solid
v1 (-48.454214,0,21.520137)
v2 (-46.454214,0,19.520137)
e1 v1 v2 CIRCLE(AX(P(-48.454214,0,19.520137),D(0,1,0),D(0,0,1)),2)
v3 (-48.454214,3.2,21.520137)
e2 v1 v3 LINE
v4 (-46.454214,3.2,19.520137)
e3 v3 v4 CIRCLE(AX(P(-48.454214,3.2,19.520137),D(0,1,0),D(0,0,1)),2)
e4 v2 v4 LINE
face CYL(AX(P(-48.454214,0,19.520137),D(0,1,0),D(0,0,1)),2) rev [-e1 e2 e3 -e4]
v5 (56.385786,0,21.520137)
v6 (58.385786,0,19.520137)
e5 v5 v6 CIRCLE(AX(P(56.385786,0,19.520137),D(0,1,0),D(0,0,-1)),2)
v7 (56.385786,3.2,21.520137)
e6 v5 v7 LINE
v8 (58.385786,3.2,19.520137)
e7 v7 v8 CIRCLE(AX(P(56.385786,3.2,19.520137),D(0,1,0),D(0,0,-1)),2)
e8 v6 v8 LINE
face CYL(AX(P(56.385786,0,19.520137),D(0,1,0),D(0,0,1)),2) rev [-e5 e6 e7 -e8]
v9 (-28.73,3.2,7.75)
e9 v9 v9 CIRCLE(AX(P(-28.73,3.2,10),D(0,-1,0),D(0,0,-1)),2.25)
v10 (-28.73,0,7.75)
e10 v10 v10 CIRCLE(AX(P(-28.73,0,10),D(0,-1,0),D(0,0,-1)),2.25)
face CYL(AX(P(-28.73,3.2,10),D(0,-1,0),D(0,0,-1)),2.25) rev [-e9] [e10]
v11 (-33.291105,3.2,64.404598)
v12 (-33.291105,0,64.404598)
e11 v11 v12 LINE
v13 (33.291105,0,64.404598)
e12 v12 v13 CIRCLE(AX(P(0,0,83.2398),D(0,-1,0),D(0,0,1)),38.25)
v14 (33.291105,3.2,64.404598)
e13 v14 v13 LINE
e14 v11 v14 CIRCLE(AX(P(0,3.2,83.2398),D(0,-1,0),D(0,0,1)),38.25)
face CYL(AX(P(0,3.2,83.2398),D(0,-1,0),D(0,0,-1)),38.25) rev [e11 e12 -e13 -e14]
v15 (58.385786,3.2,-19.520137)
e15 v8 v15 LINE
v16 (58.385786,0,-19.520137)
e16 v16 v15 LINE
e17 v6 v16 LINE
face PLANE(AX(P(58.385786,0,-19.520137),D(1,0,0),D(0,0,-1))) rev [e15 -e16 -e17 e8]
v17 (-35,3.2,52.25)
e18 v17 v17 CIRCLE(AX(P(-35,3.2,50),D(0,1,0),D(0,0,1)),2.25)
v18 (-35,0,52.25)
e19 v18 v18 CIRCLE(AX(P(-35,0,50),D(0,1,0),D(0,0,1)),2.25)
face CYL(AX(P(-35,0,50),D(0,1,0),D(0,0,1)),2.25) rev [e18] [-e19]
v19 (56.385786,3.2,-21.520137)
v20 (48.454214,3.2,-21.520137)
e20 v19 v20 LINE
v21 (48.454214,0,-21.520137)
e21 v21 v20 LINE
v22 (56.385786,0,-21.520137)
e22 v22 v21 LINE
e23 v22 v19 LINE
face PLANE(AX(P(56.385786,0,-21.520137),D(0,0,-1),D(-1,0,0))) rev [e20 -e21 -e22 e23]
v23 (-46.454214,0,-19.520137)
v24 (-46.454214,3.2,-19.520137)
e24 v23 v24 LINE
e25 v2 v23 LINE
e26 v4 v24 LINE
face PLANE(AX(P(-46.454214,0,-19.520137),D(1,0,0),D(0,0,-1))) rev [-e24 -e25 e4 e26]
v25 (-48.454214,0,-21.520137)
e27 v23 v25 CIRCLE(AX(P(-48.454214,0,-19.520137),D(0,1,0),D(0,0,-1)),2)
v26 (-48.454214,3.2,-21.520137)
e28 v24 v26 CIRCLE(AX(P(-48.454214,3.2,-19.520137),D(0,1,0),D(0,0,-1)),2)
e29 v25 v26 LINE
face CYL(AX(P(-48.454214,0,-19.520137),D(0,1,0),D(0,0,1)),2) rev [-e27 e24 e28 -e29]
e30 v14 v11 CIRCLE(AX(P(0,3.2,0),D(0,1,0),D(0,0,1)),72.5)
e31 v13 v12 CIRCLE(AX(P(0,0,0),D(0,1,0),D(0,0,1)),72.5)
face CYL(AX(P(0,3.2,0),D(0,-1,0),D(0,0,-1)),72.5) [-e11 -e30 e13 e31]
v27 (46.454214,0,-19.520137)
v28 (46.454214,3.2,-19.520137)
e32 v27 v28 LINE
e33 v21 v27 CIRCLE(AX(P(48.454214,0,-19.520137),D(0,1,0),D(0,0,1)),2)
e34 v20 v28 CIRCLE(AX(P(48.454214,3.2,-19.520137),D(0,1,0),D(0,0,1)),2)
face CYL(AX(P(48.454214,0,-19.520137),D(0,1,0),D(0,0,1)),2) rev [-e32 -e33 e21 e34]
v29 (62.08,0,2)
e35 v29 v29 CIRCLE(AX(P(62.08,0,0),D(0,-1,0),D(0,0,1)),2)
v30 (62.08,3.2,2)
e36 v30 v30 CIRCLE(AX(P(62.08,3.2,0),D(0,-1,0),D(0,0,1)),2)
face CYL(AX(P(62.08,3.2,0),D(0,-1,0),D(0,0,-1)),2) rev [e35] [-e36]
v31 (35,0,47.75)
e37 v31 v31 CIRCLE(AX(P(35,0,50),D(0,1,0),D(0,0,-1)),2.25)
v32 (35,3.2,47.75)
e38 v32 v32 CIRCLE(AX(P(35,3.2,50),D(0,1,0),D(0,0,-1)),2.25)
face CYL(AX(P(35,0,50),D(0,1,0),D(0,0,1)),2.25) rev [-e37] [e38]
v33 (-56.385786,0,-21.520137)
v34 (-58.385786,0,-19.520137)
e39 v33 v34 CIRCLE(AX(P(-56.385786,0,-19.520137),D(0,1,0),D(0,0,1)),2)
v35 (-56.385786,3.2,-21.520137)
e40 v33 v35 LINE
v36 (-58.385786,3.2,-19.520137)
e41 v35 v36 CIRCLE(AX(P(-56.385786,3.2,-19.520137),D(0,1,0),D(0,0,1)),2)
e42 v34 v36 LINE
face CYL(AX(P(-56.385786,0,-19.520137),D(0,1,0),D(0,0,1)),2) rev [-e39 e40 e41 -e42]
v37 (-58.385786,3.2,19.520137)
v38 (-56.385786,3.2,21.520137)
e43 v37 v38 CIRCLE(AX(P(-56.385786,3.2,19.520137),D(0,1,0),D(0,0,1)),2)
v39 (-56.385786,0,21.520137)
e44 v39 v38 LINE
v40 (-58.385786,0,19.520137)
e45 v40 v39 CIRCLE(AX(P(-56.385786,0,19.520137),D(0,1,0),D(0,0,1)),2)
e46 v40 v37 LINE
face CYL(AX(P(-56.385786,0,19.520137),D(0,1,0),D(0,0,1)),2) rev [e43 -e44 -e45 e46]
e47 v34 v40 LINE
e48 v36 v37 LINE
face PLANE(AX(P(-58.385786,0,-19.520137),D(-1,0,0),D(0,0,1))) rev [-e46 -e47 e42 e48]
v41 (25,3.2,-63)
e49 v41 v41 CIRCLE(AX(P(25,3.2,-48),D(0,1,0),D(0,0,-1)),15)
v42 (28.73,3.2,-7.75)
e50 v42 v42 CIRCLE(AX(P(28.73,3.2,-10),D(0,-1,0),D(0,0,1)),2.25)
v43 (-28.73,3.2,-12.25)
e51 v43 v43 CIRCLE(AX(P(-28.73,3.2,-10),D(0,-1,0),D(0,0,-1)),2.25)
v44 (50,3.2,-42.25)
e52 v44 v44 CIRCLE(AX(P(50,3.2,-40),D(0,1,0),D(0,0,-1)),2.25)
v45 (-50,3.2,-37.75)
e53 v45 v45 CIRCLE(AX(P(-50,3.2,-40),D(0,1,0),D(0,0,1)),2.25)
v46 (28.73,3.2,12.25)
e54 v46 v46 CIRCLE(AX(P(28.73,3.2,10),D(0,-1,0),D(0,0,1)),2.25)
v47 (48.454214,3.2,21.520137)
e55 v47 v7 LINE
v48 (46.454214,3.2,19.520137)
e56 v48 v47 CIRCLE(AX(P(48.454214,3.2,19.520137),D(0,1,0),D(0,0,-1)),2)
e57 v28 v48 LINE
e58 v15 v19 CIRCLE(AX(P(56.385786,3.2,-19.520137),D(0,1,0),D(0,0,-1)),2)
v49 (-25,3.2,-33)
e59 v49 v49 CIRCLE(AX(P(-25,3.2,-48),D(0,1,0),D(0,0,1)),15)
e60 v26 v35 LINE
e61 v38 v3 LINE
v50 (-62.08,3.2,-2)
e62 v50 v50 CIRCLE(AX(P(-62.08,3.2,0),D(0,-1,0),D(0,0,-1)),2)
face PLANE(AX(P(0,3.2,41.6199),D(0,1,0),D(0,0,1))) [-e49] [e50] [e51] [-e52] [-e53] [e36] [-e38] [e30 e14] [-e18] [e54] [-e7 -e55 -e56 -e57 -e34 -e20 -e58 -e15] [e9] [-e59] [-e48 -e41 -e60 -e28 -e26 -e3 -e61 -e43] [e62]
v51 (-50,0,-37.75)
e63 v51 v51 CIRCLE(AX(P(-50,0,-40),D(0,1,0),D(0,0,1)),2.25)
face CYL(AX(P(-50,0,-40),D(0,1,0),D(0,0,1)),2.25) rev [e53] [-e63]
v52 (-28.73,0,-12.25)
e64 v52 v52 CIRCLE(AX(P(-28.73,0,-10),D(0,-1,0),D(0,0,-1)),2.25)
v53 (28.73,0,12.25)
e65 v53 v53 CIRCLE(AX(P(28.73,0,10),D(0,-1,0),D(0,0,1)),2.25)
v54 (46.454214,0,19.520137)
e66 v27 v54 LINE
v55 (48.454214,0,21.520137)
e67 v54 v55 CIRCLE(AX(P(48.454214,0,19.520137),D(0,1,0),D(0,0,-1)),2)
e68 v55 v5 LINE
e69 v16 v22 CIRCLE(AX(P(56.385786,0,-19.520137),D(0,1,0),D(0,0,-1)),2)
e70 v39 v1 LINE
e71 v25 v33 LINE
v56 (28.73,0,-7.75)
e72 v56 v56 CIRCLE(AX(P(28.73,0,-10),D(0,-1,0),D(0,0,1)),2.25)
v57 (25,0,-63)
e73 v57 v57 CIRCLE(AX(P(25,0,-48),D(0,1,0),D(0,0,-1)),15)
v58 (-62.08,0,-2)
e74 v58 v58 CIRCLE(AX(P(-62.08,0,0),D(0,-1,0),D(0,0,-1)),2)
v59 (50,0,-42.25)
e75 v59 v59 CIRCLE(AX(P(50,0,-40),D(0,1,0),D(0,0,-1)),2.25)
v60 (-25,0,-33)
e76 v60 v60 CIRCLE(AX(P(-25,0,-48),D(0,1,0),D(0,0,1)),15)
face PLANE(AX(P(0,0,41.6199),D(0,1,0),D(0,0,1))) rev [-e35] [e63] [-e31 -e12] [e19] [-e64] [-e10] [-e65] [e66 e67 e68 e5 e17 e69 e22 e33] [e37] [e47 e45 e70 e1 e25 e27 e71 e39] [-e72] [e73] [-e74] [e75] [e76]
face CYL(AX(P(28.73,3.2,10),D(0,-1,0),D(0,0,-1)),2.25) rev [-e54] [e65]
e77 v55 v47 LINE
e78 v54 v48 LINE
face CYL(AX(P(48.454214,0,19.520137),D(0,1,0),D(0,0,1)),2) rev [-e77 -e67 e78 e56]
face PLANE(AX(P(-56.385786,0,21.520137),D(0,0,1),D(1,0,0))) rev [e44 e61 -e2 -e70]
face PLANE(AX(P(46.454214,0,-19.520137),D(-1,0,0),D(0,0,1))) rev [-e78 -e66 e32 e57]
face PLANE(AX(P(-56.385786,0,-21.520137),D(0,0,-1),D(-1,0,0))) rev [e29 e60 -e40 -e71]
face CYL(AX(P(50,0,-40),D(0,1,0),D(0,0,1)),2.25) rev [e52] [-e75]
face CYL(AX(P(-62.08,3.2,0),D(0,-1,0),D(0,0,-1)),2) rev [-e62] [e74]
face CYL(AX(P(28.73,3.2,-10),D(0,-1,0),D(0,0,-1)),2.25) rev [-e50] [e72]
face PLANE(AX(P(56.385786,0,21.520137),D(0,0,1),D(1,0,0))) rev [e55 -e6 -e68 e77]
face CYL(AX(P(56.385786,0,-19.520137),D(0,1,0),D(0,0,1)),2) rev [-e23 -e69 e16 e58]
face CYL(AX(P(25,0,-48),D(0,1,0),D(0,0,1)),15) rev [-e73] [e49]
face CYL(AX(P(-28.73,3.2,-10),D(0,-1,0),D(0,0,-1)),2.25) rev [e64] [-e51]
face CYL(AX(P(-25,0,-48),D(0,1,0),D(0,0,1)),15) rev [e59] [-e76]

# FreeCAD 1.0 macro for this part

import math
import FreeCAD as App
import Part
import Sketcher
from FreeCAD import Vector

doc = App.newDocument("Part")
params = doc.addObject("Spreadsheet::Sheet", "Params")
for row, (alias, value) in enumerate([
    ("sketch1_radius", "72.5 mm"),
    ("sketch1_radius2", "38.25 mm"),
    ("pad1_length", "3.2 mm"),
    ("sketch2_width", "10.76 mm"),
    ("sketch3_diameter", "4 mm"),
    ("sketch3_diameter2", "4.5 mm"),
    ("sketch4_diameter", "30 mm"),
    ("sketch5_radius", "2 mm"),
    ("sketch6_diameter", "4.5 mm"),
], start=1):
    params.set(f"A{row}", alias)
    params.set(f"B{row}", "=" + value)
    params.setAlias(f"B{row}", alias)

body = doc.addObject("PartDesign::Body", "Body")

sketch1 = doc.addObject("Sketcher::SketchObject", "Sketch")
body.addObject(sketch1)
sketch1.AttachmentSupport = (doc.XZ_Plane, [""])
sketch1.MapMode = "FlatFace"
sketch1.addGeometry([
    Part.ArcOfCircle(Part.Circle(Vector(0, 0, 0), Vector(0, 0, 1), 72), math.radians(117), math.radians(423)),
    Part.ArcOfCircle(Part.Circle(Vector(0, 83, 0), Vector(0, 0, 1), 38), math.radians(-150), math.radians(-30)),
], False)
sketch1.addConstraint([
    Sketcher.Constraint("Coincident", 0, 1, 1, 1),
    Sketcher.Constraint("Coincident", 1, 2, 0, 2),
    Sketcher.Constraint("Coincident", 0, 3, -1, 1),
    Sketcher.Constraint("PointOnObject", 1, 3, -2),
    Sketcher.Constraint("Radius", 0, 72.5),
    Sketcher.Constraint("Radius", 1, 38.25),
    Sketcher.Constraint("DistanceY", -1, 1, 1, 3, 83.2398),
])
sketch1.setExpression("Constraints[4]", "Params.sketch1_radius")
sketch1.setExpression("Constraints[5]", "Params.sketch1_radius2")
pad1 = doc.addObject("PartDesign::Pad", "Pad")
body.addObject(pad1)
pad1.Profile = sketch1
pad1.setExpression("Length", "Params.pad1_length")
pad1.Reversed = True

sketch2 = doc.addObject("Sketcher::SketchObject", "Sketch001")
body.addObject(sketch2)
sketch2.AttachmentSupport = (doc.XZ_Plane, [""])
sketch2.MapMode = "FlatFace"
sketch2.AttachmentOffset = App.Placement(Vector(0, 0, -3.2), App.Rotation())
sketch2.addGeometry([
    Part.LineSegment(Vector(-58, -21, 0), Vector(-58, 21, 0)),
    Part.LineSegment(Vector(-58, 21, 0), Vector(-47, 21, 0)),
    Part.LineSegment(Vector(-47, 21, 0), Vector(-47, -21, 0)),
    Part.LineSegment(Vector(-47, -21, 0), Vector(-58, -21, 0)),
    Part.LineSegment(Vector(47, -21, 0), Vector(47, 21, 0)),
    Part.LineSegment(Vector(47, 21, 0), Vector(58, 21, 0)),
    Part.LineSegment(Vector(58, 21, 0), Vector(58, -21, 0)),
    Part.LineSegment(Vector(58, -21, 0), Vector(47, -21, 0)),
], False)
sketch2.addConstraint([
    Sketcher.Constraint("Coincident", 0, 2, 1, 1),
    Sketcher.Constraint("Coincident", 1, 2, 2, 1),
    Sketcher.Constraint("Coincident", 2, 2, 3, 1),
    Sketcher.Constraint("Coincident", 3, 2, 0, 1),
    Sketcher.Constraint("Coincident", 4, 2, 5, 1),
    Sketcher.Constraint("Coincident", 5, 2, 6, 1),
    Sketcher.Constraint("Coincident", 6, 2, 7, 1),
    Sketcher.Constraint("Coincident", 7, 2, 4, 1),
    Sketcher.Constraint("Vertical", 0),
    Sketcher.Constraint("Horizontal", 1),
    Sketcher.Constraint("Vertical", 2),
    Sketcher.Constraint("Horizontal", 3),
    Sketcher.Constraint("Vertical", 4),
    Sketcher.Constraint("Horizontal", 5),
    Sketcher.Constraint("Vertical", 6),
    Sketcher.Constraint("Horizontal", 7),
    Sketcher.Constraint("Symmetric", 2, 2, 4, 2, -1, 1),
    Sketcher.Constraint("Symmetric", 0, 2, 6, 2, -1, 1),
    Sketcher.Constraint("Horizontal", 1, 2, 4, 2),
    Sketcher.Constraint("DistanceX", 1, 1, 1, 2, 10.76),
    Sketcher.Constraint("DistanceX", 0, 2, -1, 1, 57.8),
    Sketcher.Constraint("DistanceY", 0, 1, 0, 2, 41.8687),
])
sketch2.setExpression("Constraints[19]", "Params.sketch2_width")
pocket1 = doc.addObject("PartDesign::Pocket", "Pocket")
body.addObject(pocket1)
pocket1.Profile = sketch2
pocket1.Type = "ThroughAll"
pocket1.Reversed = True

sketch3 = doc.addObject("Sketcher::SketchObject", "Sketch002")
body.addObject(sketch3)
sketch3.AttachmentSupport = (doc.XZ_Plane, [""])
sketch3.MapMode = "FlatFace"
sketch3.addGeometry([
    Part.Circle(Vector(-62.1, 0, 0), Vector(0, 0, 1), 2),
    Part.Circle(Vector(-28.7, 10, 0), Vector(0, 0, 1), 2.2),
    Part.Circle(Vector(-28.7, -10, 0), Vector(0, 0, 1), 2.2),
    Part.Circle(Vector(28.7, -10, 0), Vector(0, 0, 1), 2.2),
    Part.Circle(Vector(28.7, 10, 0), Vector(0, 0, 1), 2.2),
    Part.Circle(Vector(62.1, 0, 0), Vector(0, 0, 1), 2),
], False)
sketch3.addConstraint([
    Sketcher.Constraint("Equal", 1, 2),
    Sketcher.Constraint("Equal", 2, 3),
    Sketcher.Constraint("Equal", 3, 4),
    Sketcher.Constraint("Equal", 0, 5),
    Sketcher.Constraint("Symmetric", 1, 3, 3, 3, -1, 1),
    Sketcher.Constraint("Symmetric", 2, 3, 4, 3, -1, 1),
    Sketcher.Constraint("Symmetric", 0, 3, 5, 3, -1, 1),
    Sketcher.Constraint("Symmetric", 2, 3, 3, 3, -2),
    Sketcher.Constraint("PointOnObject", 0, 3, -1),
    Sketcher.Constraint("Diameter", 0, 4.0),
    Sketcher.Constraint("Diameter", 1, 4.5),
    Sketcher.Constraint("DistanceY", -1, 1, 1, 3, 10.0),
    Sketcher.Constraint("DistanceX", 0, 3, -1, 1, 62.08),
    Sketcher.Constraint("DistanceX", 1, 3, -1, 1, 28.73),
])
sketch3.setExpression("Constraints[9]", "Params.sketch3_diameter")
sketch3.setExpression("Constraints[10]", "Params.sketch3_diameter2")
pocket2 = doc.addObject("PartDesign::Pocket", "Pocket001")
body.addObject(pocket2)
pocket2.Profile = sketch3
pocket2.Type = "ThroughAll"

sketch4 = doc.addObject("Sketcher::SketchObject", "Sketch003")
body.addObject(sketch4)
sketch4.AttachmentSupport = (doc.XZ_Plane, [""])
sketch4.MapMode = "FlatFace"
sketch4.AttachmentOffset = App.Placement(Vector(0, 0, -3.2), App.Rotation())
sketch4.addGeometry([
    Part.Circle(Vector(-25, -48, 0), Vector(0, 0, 1), 15),
    Part.Circle(Vector(25, -48, 0), Vector(0, 0, 1), 15),
], False)
sketch4.addConstraint([
    Sketcher.Constraint("Equal", 0, 1),
    Sketcher.Constraint("Symmetric", 0, 3, 1, 3, -2),
    Sketcher.Constraint("Diameter", 0, 30.0),
    Sketcher.Constraint("DistanceX", 0, 3, -1, 1, 25.0),
    Sketcher.Constraint("DistanceY", 0, 3, -1, 1, 48.0),
])
sketch4.setExpression("Constraints[2]", "Params.sketch4_diameter")
pocket3 = doc.addObject("PartDesign::Pocket", "Pocket002")
body.addObject(pocket3)
pocket3.Profile = sketch4
pocket3.Type = "ThroughAll"
pocket3.Reversed = True

sketch5 = doc.addObject("Sketcher::SketchObject", "Sketch004")
body.addObject(sketch5)
sketch5.AttachmentSupport = (doc.XZ_Plane, [""])
sketch5.MapMode = "FlatFace"
sketch5.AttachmentOffset = App.Placement(Vector(0, 0, -3.2), App.Rotation())
sketch5.addGeometry([
    Part.LineSegment(Vector(-48.5, -21.5, 0), Vector(-56.4, -21.5, 0)),
    Part.ArcOfCircle(Part.Circle(Vector(-56.4, -19.5, 0), Vector(0, 0, 1), 2), math.radians(-180), math.radians(-90)),
    Part.LineSegment(Vector(-58.4, -19.5, 0), Vector(-58.4, 19.5, 0)),
    Part.ArcOfCircle(Part.Circle(Vector(-56.4, 19.5, 0), Vector(0, 0, 1), 2), math.radians(90), math.radians(180)),
    Part.LineSegment(Vector(-56.4, 21.5, 0), Vector(-48.5, 21.5, 0)),
    Part.ArcOfCircle(Part.Circle(Vector(-48.5, 19.5, 0), Vector(0, 0, 1), 2), math.radians(0), math.radians(90)),
    Part.LineSegment(Vector(-46.5, 19.5, 0), Vector(-46.5, -19.5, 0)),
    Part.ArcOfCircle(Part.Circle(Vector(-48.5, -19.5, 0), Vector(0, 0, 1), 2), math.radians(-90), math.radians(0)),
    Part.LineSegment(Vector(46.5, -19.5, 0), Vector(46.5, 19.5, 0)),
    Part.ArcOfCircle(Part.Circle(Vector(48.5, 19.5, 0), Vector(0, 0, 1), 2), math.radians(90), math.radians(180)),
    Part.LineSegment(Vector(48.5, 21.5, 0), Vector(56.4, 21.5, 0)),
    Part.ArcOfCircle(Part.Circle(Vector(56.4, 19.5, 0), Vector(0, 0, 1), 2), math.radians(0), math.radians(90)),
    Part.LineSegment(Vector(58.4, 19.5, 0), Vector(58.4, -19.5, 0)),
    Part.ArcOfCircle(Part.Circle(Vector(56.4, -19.5, 0), Vector(0, 0, 1), 2), math.radians(-90), math.radians(0)),
    Part.LineSegment(Vector(56.4, -21.5, 0), Vector(48.5, -21.5, 0)),
    Part.ArcOfCircle(Part.Circle(Vector(48.5, -19.5, 0), Vector(0, 0, 1), 2), math.radians(-180), math.radians(-90)),
], False)
sketch5.addConstraint([
    Sketcher.Constraint("Tangent", 0, 2, 1, 2),
    Sketcher.Constraint("Tangent", 1, 1, 2, 1),
    Sketcher.Constraint("Tangent", 2, 2, 3, 2),
    Sketcher.Constraint("Tangent", 3, 1, 4, 1),
    Sketcher.Constraint("Tangent", 4, 2, 5, 2),
    Sketcher.Constraint("Tangent", 5, 1, 6, 1),
    Sketcher.Constraint("Tangent", 6, 2, 7, 2),
    Sketcher.Constraint("Tangent", 7, 1, 0, 1),
    Sketcher.Constraint("Tangent", 8, 2, 9, 2),
    Sketcher.Constraint("Tangent", 9, 1, 10, 1),
    Sketcher.Constraint("Tangent", 10, 2, 11, 2),
    Sketcher.Constraint("Tangent", 11, 1, 12, 1),
    Sketcher.Constraint("Tangent", 12, 2, 13, 2),
    Sketcher.Constraint("Tangent", 13, 1, 14, 1),
    Sketcher.Constraint("Tangent", 14, 2, 15, 2),
    Sketcher.Constraint("Tangent", 15, 1, 8, 1),
    Sketcher.Constraint("Horizontal", 0),
    Sketcher.Constraint("Vertical", 2),
    Sketcher.Constraint("Horizontal", 4),
    Sketcher.Constraint("Vertical", 6),
    Sketcher.Constraint("Vertical", 8),
    Sketcher.Constraint("Horizontal", 10),
    Sketcher.Constraint("Vertical", 12),
    Sketcher.Constraint("Horizontal", 14),
    Sketcher.Constraint("Equal", 1, 3),
    Sketcher.Constraint("Equal", 3, 5),
    Sketcher.Constraint("Equal", 5, 7),
    Sketcher.Constraint("Equal", 7, 9),
    Sketcher.Constraint("Equal", 9, 11),
    Sketcher.Constraint("Equal", 11, 13),
    Sketcher.Constraint("Equal", 13, 15),
    Sketcher.Constraint("Symmetric", 7, 3, 9, 3, -1, 1),
    Sketcher.Constraint("Symmetric", 3, 3, 13, 3, -1, 1),
    Sketcher.Constraint("Horizontal", 5, 3, 9, 3),
    Sketcher.Constraint("Radius", 1, 2.0),
    Sketcher.Constraint("DistanceX", 3, 3, 9, 3, 104.84),
    Sketcher.Constraint("DistanceX", 0, 2, 0, 1, 7.931573),
    Sketcher.Constraint("DistanceY", 2, 1, 2, 2, 39.040273),
])
sketch5.setExpression("Constraints[34]", "Params.sketch5_radius")
pocket4 = doc.addObject("PartDesign::Pocket", "Pocket003")
body.addObject(pocket4)
pocket4.Profile = sketch5
pocket4.Type = "ThroughAll"
pocket4.Reversed = True

sketch6 = doc.addObject("Sketcher::SketchObject", "Sketch005")
body.addObject(sketch6)
sketch6.AttachmentSupport = (doc.XZ_Plane, [""])
sketch6.MapMode = "FlatFace"
sketch6.AttachmentOffset = App.Placement(Vector(0, 0, -3.2), App.Rotation())
sketch6.addGeometry([
    Part.Circle(Vector(-50, -40, 0), Vector(0, 0, 1), 2.2),
    Part.Circle(Vector(-35, 50, 0), Vector(0, 0, 1), 2.2),
    Part.Circle(Vector(35, 50, 0), Vector(0, 0, 1), 2.2),
    Part.Circle(Vector(50, -40, 0), Vector(0, 0, 1), 2.2),
], False)
sketch6.addConstraint([
    Sketcher.Constraint("Equal", 0, 1),
    Sketcher.Constraint("Equal", 1, 2),
    Sketcher.Constraint("Equal", 2, 3),
    Sketcher.Constraint("Symmetric", 1, 3, 2, 3, -2),
    Sketcher.Constraint("Symmetric", 0, 3, 3, 3, -2),
    Sketcher.Constraint("Diameter", 0, 4.5),
    Sketcher.Constraint("DistanceX", 0, 3, -1, 1, 50.0),
    Sketcher.Constraint("DistanceY", 0, 3, -1, 1, 40.0),
    Sketcher.Constraint("DistanceX", 1, 3, -1, 1, 35.0),
    Sketcher.Constraint("DistanceY", -1, 1, 1, 3, 50.0),
])
sketch6.setExpression("Constraints[5]", "Params.sketch6_diameter")
pocket5 = doc.addObject("PartDesign::Pocket", "Pocket004")
body.addObject(pocket5)
pocket5.Profile = sketch6
pocket5.Type = "ThroughAll"
pocket5.Reversed = True

doc.recompute()
